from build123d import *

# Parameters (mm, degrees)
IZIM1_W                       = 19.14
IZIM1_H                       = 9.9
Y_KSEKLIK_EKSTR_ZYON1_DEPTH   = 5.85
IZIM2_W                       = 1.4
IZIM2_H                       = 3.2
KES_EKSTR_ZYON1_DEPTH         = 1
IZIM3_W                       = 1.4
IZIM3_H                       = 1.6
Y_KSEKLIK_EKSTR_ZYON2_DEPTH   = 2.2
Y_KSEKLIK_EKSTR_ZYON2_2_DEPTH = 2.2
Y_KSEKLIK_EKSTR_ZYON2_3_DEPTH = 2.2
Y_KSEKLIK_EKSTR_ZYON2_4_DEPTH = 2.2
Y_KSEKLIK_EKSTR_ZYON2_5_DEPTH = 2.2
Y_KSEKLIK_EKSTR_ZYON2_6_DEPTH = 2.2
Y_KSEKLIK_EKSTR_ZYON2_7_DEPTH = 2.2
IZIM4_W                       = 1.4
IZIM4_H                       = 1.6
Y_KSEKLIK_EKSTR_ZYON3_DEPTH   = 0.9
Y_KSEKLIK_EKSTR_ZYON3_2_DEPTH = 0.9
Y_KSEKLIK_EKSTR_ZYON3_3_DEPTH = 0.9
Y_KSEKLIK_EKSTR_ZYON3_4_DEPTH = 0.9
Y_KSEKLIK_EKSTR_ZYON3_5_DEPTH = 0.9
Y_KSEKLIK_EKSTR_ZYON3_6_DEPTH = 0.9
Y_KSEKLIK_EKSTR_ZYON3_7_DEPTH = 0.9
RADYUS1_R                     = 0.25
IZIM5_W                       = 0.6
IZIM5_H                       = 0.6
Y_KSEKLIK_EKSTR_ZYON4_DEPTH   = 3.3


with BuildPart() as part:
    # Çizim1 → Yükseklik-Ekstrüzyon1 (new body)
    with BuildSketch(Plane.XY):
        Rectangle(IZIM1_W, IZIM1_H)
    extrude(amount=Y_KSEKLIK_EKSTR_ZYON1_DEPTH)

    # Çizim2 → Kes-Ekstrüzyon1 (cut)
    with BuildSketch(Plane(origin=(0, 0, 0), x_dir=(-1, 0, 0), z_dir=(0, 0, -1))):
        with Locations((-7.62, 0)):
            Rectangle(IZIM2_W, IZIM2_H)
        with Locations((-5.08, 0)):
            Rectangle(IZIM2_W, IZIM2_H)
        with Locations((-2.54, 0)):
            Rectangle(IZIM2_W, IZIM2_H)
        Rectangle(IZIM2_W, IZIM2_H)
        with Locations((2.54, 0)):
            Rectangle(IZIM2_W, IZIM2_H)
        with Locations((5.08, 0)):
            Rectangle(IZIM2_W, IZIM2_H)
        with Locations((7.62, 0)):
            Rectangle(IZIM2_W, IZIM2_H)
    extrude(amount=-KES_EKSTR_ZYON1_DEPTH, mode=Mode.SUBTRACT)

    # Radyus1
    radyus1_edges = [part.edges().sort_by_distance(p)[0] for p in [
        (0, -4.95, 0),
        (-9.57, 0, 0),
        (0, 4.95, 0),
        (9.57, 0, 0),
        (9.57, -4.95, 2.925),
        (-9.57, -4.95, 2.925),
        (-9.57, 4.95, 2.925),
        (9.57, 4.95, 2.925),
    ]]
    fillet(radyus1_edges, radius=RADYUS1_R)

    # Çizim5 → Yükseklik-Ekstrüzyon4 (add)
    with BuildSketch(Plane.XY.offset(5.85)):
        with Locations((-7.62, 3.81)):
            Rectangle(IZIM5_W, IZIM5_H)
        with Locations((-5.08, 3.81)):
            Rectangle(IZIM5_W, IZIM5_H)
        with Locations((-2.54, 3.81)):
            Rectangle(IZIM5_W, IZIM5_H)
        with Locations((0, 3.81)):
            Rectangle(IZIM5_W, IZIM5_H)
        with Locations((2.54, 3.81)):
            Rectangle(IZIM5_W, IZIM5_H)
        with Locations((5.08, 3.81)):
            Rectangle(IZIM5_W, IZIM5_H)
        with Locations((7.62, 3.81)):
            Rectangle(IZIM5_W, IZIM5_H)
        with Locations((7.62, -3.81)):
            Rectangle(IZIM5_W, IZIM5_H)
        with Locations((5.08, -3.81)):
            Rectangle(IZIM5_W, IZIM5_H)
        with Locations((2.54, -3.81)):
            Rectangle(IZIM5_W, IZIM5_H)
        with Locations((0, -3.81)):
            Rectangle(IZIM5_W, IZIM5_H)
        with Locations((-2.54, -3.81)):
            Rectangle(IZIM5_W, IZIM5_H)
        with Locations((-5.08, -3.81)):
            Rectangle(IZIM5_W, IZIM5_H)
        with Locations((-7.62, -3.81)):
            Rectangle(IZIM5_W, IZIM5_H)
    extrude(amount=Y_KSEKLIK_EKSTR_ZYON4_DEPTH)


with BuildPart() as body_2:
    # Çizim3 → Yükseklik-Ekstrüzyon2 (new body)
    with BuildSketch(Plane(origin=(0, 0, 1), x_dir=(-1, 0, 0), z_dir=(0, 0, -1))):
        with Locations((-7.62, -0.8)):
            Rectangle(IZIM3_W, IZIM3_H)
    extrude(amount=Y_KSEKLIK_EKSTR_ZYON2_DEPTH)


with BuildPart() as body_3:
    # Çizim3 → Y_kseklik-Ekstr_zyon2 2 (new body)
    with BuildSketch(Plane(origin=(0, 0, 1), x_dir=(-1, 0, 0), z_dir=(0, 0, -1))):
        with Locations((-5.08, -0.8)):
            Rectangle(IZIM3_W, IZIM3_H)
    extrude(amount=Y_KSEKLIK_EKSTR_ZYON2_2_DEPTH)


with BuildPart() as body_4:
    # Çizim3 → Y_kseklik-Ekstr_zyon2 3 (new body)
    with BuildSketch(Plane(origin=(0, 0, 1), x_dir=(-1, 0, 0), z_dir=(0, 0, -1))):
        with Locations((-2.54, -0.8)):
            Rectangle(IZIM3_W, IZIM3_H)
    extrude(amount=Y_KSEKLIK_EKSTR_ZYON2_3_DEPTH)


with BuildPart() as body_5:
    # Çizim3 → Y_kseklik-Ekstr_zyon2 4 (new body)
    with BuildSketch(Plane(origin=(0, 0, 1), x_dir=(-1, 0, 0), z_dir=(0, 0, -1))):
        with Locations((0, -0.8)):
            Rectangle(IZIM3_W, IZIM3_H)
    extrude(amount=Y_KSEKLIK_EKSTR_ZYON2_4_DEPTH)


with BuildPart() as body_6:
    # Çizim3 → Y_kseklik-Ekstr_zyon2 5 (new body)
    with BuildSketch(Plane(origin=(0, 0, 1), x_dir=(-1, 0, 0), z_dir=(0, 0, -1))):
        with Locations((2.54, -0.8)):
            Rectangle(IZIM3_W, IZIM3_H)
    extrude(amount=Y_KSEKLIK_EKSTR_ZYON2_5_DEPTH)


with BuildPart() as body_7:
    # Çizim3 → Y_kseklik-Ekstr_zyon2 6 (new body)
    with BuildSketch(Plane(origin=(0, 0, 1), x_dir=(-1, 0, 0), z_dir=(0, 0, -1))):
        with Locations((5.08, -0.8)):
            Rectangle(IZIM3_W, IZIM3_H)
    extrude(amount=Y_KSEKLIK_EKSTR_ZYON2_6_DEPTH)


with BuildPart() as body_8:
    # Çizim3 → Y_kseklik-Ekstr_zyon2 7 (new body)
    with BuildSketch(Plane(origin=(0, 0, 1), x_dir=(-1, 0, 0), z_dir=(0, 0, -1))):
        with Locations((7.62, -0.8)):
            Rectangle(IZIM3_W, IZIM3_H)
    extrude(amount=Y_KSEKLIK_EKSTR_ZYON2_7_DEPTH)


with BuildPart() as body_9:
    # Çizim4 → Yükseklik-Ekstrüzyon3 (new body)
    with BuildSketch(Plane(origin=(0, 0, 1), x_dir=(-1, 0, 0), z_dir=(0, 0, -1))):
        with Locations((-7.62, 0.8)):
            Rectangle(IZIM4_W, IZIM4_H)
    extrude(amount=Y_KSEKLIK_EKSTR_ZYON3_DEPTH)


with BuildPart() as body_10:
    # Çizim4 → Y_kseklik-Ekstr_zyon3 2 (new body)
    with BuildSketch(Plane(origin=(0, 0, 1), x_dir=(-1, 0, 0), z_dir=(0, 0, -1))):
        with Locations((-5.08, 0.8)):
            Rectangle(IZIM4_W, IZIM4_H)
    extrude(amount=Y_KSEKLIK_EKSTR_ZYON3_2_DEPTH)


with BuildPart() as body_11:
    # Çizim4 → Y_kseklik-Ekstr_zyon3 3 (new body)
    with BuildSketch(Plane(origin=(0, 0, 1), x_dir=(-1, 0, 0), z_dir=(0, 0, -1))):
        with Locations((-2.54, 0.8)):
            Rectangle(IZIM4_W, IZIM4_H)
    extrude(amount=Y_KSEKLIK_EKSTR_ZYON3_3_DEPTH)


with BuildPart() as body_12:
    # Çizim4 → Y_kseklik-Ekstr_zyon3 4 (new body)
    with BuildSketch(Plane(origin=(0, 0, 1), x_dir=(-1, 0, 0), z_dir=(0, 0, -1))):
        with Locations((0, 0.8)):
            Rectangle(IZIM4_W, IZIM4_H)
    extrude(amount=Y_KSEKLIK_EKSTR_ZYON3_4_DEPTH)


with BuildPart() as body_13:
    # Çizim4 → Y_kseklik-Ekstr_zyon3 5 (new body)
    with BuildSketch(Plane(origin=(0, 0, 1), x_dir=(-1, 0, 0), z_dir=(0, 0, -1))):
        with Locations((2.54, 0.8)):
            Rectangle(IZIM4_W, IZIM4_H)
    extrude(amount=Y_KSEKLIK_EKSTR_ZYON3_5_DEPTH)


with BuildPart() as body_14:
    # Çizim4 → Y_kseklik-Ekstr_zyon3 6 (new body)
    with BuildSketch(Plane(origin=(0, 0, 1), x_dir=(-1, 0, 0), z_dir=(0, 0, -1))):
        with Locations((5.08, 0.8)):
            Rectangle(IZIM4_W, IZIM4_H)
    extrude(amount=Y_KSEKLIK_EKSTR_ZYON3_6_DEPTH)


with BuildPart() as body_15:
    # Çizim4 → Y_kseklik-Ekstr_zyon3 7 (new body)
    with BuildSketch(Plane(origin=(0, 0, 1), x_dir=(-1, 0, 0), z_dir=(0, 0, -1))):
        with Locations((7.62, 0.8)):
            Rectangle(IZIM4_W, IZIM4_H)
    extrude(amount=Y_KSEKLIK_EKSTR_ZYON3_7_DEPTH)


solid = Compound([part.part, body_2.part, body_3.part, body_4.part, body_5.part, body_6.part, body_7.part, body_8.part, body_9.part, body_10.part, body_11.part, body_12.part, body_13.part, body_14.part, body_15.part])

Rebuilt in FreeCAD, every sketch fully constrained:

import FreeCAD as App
import Part
import Sketcher

V = App.Vector


def edges_at(feature, points):
    """Names of the edges that pass closest to the given points."""
    edges = feature.Shape.Edges
    near = lambda p: min(range(len(edges)), key=lambda i: edges[i].distToShape(Part.Vertex(*p))[0])
    return sorted({f"Edge{near(p) + 1}" for p in points})


def add_polygon(sketch, points):
    """Adds a closed chain of lines whose ends are joined by coincident constraints."""
    first, n = sketch.GeometryCount, len(points)
    for a, b in zip(points, points[1:] + points[:1]):
        sketch.addGeometry(Part.LineSegment(App.Vector(*a, 0), App.Vector(*b, 0)), False)
    for i in range(n):
        sketch.addConstraint(Sketcher.Constraint("Coincident", first + i, 2, first + (i + 1) % n, 1))

doc = App.newDocument("Part")
body = doc.addObject("PartDesign::Body", "Body")

# Sketch on XY plane
sketch1 = body.newObject("Sketcher::SketchObject", "Sketch")
sketch1.AttachmentSupport = (doc.getObject("XY_Plane"), [""])
sketch1.MapMode = "FlatFace"
add_polygon(sketch1, [(-10, 5), (-10, -5), (10, -5), (10, 5)])  # lines 0-3
sketch1.addConstraint([
    Sketcher.Constraint("Vertical", 0),
    Sketcher.Constraint("Horizontal", 1),
    Sketcher.Constraint("Vertical", 2),
    Sketcher.Constraint("Horizontal", 3),
    Sketcher.Constraint("Symmetric", 0, 2, 2, 2, -1, 1),
    Sketcher.Constraint("DistanceY", 0, 2, 0, 1, 9.9),
    Sketcher.Constraint("DistanceX", 1, 1, 1, 2, 19.14),
])
pad1 = body.newObject("PartDesign::Pad", "Pad")
pad1.Profile = sketch1
pad1.Length = 5.85

# Sketch on XY plane
sketch2 = body.newObject("Sketcher::SketchObject", "Sketch001")
sketch2.AttachmentSupport = (doc.getObject("XY_Plane"), [""])
sketch2.MapMode = "FlatFace"
add_polygon(sketch2, [(8.3, 1.6), (8.3, -1.6), (6.9, -1.6), (6.9, 1.6)])  # lines 0-3
add_polygon(sketch2, [(5.8, 1.6), (5.8, -1.6), (4.4, -1.6), (4.4, 1.6)])  # lines 4-7
add_polygon(sketch2, [(3.2, 1.6), (3.2, -1.6), (1.8, -1.6), (1.8, 1.6)])  # lines 8-11
add_polygon(sketch2, [(0.7, 1.6), (0.7, -1.6), (-0.7, -1.6), (-0.7, 1.6)])  # lines 12-15
add_polygon(sketch2, [(-1.8, 1.6), (-1.8, -1.6), (-3.2, -1.6), (-3.2, 1.6)])  # lines 16-19
add_polygon(sketch2, [(-4.4, 1.6), (-4.4, -1.6), (-5.8, -1.6), (-5.8, 1.6)])  # lines 20-23
add_polygon(sketch2, [(-6.9, 1.6), (-6.9, -1.6), (-8.3, -1.6), (-8.3, 1.6)])  # lines 24-27
sketch2.addConstraint([
    Sketcher.Constraint("Vertical", 0),
    Sketcher.Constraint("Horizontal", 1),
    Sketcher.Constraint("Vertical", 2),
    Sketcher.Constraint("Horizontal", 3),
    Sketcher.Constraint("Vertical", 4),
    Sketcher.Constraint("Horizontal", 5),
    Sketcher.Constraint("Vertical", 6),
    Sketcher.Constraint("Horizontal", 7),
    Sketcher.Constraint("Vertical", 8),
    Sketcher.Constraint("Horizontal", 9),
    Sketcher.Constraint("Vertical", 10),
    Sketcher.Constraint("Horizontal", 11),
    Sketcher.Constraint("Vertical", 12),
    Sketcher.Constraint("Horizontal", 13),
    Sketcher.Constraint("Vertical", 14),
    Sketcher.Constraint("Horizontal", 15),
    Sketcher.Constraint("Vertical", 16),
    Sketcher.Constraint("Horizontal", 17),
    Sketcher.Constraint("Vertical", 18),
    Sketcher.Constraint("Horizontal", 19),
    Sketcher.Constraint("Vertical", 20),
    Sketcher.Constraint("Horizontal", 21),
    Sketcher.Constraint("Vertical", 22),
    Sketcher.Constraint("Horizontal", 23),
    Sketcher.Constraint("Vertical", 24),
    Sketcher.Constraint("Horizontal", 25),
    Sketcher.Constraint("Vertical", 26),
    Sketcher.Constraint("Horizontal", 27),
    Sketcher.Constraint("Symmetric", 12, 2, 14, 2, -1, 1),
    Sketcher.Constraint("Symmetric", 10, 2, 16, 2, -1, 1),
    Sketcher.Constraint("Symmetric", 8, 2, 18, 2, -1, 1),
    Sketcher.Constraint("Symmetric", 6, 2, 20, 2, -1, 1),
    Sketcher.Constraint("Symmetric", 4, 2, 22, 2, -1, 1),
    Sketcher.Constraint("Symmetric", 2, 2, 24, 2, -1, 1),
    Sketcher.Constraint("Symmetric", 0, 2, 26, 2, -1, 1),
    Sketcher.Constraint("Horizontal", 1, 2, 4, 2),
    Sketcher.Constraint("Horizontal", 3, 2, 6, 2),
    Sketcher.Constraint("Horizontal", 5, 2, 8, 2),
    Sketcher.Constraint("Horizontal", 7, 2, 10, 2),
    Sketcher.Constraint("Horizontal", 9, 2, 12, 2),
    Sketcher.Constraint("Horizontal", 11, 2, 14, 2),
    Sketcher.Constraint("Equal", 3, 5),
    Sketcher.Constraint("Equal", 7, 9),
    Sketcher.Constraint("Equal", 11, 13),
    Sketcher.Constraint("DistanceX", 1, 2, 1, 1, 1.4),
    Sketcher.Constraint("DistanceY", 0, 2, 0, 1, 3.2),
    Sketcher.Constraint("DistanceX", -1, 1, 0, 2, 8.32),
    Sketcher.Constraint("DistanceX", -1, 1, 4, 2, 5.78),
    Sketcher.Constraint("DistanceX", -1, 1, 8, 2, 3.24),
])
pocket1 = body.newObject("PartDesign::Pocket", "Pocket")
pocket1.Profile = sketch2
pocket1.Length = 1
pocket1.Reversed = True
doc.recompute()

fillet = body.newObject("PartDesign::Fillet", "Fillet")
fillet.Base = (pocket1, edges_at(pocket1, [
    (0, -4.95, 0),
    (-9.57, 0, 0),
    (0, 4.95, 0),
    (9.57, 0, 0),
    (9.57, -4.95, 2.925),
    (-9.57, -4.95, 2.925),
    (-9.57, 4.95, 2.925),
    (9.57, 4.95, 2.925),
]))
fillet.Radius = 0.25

# Sketch on XY plane
sketch3 = body.newObject("Sketcher::SketchObject", "Sketch002")
sketch3.AttachmentSupport = (doc.getObject("XY_Plane"), [""])
sketch3.MapMode = "FlatFace"
sketch3.AttachmentOffset = App.Placement(V(0, 0, 5.85), App.Rotation())
add_polygon(sketch3, [(-7.9, 4.1), (-7.9, 3.5), (-7.3, 3.5), (-7.3, 4.1)])  # lines 0-3
add_polygon(sketch3, [(-5.4, 4.1), (-5.4, 3.5), (-4.8, 3.5), (-4.8, 4.1)])  # lines 4-7
add_polygon(sketch3, [(-2.8, 4.1), (-2.8, 3.5), (-2.2, 3.5), (-2.2, 4.1)])  # lines 8-11
add_polygon(sketch3, [(-0.3, 4.1), (-0.3, 3.5), (0.3, 3.5), (0.3, 4.1)])  # lines 12-15
add_polygon(sketch3, [(2.2, 4.1), (2.2, 3.5), (2.8, 3.5), (2.8, 4.1)])  # lines 16-19
add_polygon(sketch3, [(4.8, 4.1), (4.8, 3.5), (5.4, 3.5), (5.4, 4.1)])  # lines 20-23
add_polygon(sketch3, [(7.3, 4.1), (7.3, 3.5), (7.9, 3.5), (7.9, 4.1)])  # lines 24-27
add_polygon(sketch3, [(7.3, -3.5), (7.3, -4.1), (7.9, -4.1), (7.9, -3.5)])  # lines 28-31
add_polygon(sketch3, [(4.8, -3.5), (4.8, -4.1), (5.4, -4.1), (5.4, -3.5)])  # lines 32-35
add_polygon(sketch3, [(2.2, -3.5), (2.2, -4.1), (2.8, -4.1), (2.8, -3.5)])  # lines 36-39
add_polygon(sketch3, [(-0.3, -3.5), (-0.3, -4.1), (0.3, -4.1), (0.3, -3.5)])  # lines 40-43
add_polygon(sketch3, [(-2.8, -3.5), (-2.8, -4.1), (-2.2, -4.1), (-2.2, -3.5)])  # lines 44-47
add_polygon(sketch3, [(-5.4, -3.5), (-5.4, -4.1), (-4.8, -4.1), (-4.8, -3.5)])  # lines 48-51
add_polygon(sketch3, [(-7.9, -3.5), (-7.9, -4.1), (-7.3, -4.1), (-7.3, -3.5)])  # lines 52-55
sketch3.addConstraint([
    Sketcher.Constraint("Vertical", 0),
    Sketcher.Constraint("Horizontal", 1),
    Sketcher.Constraint("Vertical", 2),
    Sketcher.Constraint("Horizontal", 3),
    Sketcher.Constraint("Vertical", 4),
    Sketcher.Constraint("Horizontal", 5),
    Sketcher.Constraint("Vertical", 6),
    Sketcher.Constraint("Horizontal", 7),
    Sketcher.Constraint("Vertical", 8),
    Sketcher.Constraint("Horizontal", 9),
    Sketcher.Constraint("Vertical", 10),
    Sketcher.Constraint("Horizontal", 11),
    Sketcher.Constraint("Vertical", 12),
    Sketcher.Constraint("Horizontal", 13),
    Sketcher.Constraint("Vertical", 14),
    Sketcher.Constraint("Horizontal", 15),
    Sketcher.Constraint("Vertical", 16),
    Sketcher.Constraint("Horizontal", 17),
    Sketcher.Constraint("Vertical", 18),
    Sketcher.Constraint("Horizontal", 19),
    Sketcher.Constraint("Vertical", 20),
    Sketcher.Constraint("Horizontal", 21),
    Sketcher.Constraint("Vertical", 22),
    Sketcher.Constraint("Horizontal", 23),
    Sketcher.Constraint("Vertical", 24),
    Sketcher.Constraint("Horizontal", 25),
    Sketcher.Constraint("Vertical", 26),
    Sketcher.Constraint("Horizontal", 27),
    Sketcher.Constraint("Vertical", 28),
    Sketcher.Constraint("Horizontal", 29),
    Sketcher.Constraint("Vertical", 30),
    Sketcher.Constraint("Horizontal", 31),
    Sketcher.Constraint("Vertical", 32),
    Sketcher.Constraint("Horizontal", 33),
    Sketcher.Constraint("Vertical", 34),
    Sketcher.Constraint("Horizontal", 35),
    Sketcher.Constraint("Vertical", 36),
    Sketcher.Constraint("Horizontal", 37),
    Sketcher.Constraint("Vertical", 38),
    Sketcher.Constraint("Horizontal", 39),
    Sketcher.Constraint("Vertical", 40),
    Sketcher.Constraint("Horizontal", 41),
    Sketcher.Constraint("Vertical", 42),
    Sketcher.Constraint("Horizontal", 43),
    Sketcher.Constraint("Vertical", 44),
    Sketcher.Constraint("Horizontal", 45),
    Sketcher.Constraint("Vertical", 46),
    Sketcher.Constraint("Horizontal", 47),
    Sketcher.Constraint("Vertical", 48),
    Sketcher.Constraint("Horizontal", 49),
    Sketcher.Constraint("Vertical", 50),
    Sketcher.Constraint("Horizontal", 51),
    Sketcher.Constraint("Vertical", 52),
    Sketcher.Constraint("Horizontal", 53),
    Sketcher.Constraint("Vertical", 54),
    Sketcher.Constraint("Horizontal", 55),
    Sketcher.Constraint("Symmetric", 2, 2, 28, 2, -1, 1),
    Sketcher.Constraint("Symmetric", 0, 2, 30, 2, -1, 1),
    Sketcher.Constraint("Symmetric", 6, 2, 32, 2, -1, 1),
    Sketcher.Constraint("Symmetric", 4, 2, 34, 2, -1, 1),
    Sketcher.Constraint("Symmetric", 10, 2, 36, 2, -1, 1),
    Sketcher.Constraint("Symmetric", 8, 2, 38, 2, -1, 1),
    Sketcher.Constraint("Symmetric", 14, 2, 40, 2, -1, 1),
    Sketcher.Constraint("Symmetric", 12, 2, 42, 2, -1, 1),
    Sketcher.Constraint("Symmetric", 18, 2, 44, 2, -1, 1),
    Sketcher.Constraint("Symmetric", 16, 2, 46, 2, -1, 1),
    Sketcher.Constraint("Symmetric", 22, 2, 48, 2, -1, 1),
    Sketcher.Constraint("Symmetric", 20, 2, 50, 2, -1, 1),
    Sketcher.Constraint("Symmetric", 26, 2, 52, 2, -1, 1),
    Sketcher.Constraint("Symmetric", 24, 2, 54, 2, -1, 1),
    Sketcher.Constraint("Symmetric", 9, 2, 16, 2, -2),
    Sketcher.Constraint("Symmetric", 11, 2, 18, 2, -2),
    Sketcher.Constraint("Symmetric", 5, 2, 20, 2, -2),
    Sketcher.Constraint("Symmetric", 7, 2, 22, 2, -2),
    Sketcher.Constraint("Symmetric", 1, 2, 24, 2, -2),
    Sketcher.Constraint("Symmetric", 3, 2, 26, 2, -2),
    Sketcher.Constraint("Horizontal", 1, 2, 4, 2),
    Sketcher.Constraint("Horizontal", 3, 2, 6, 2),
    Sketcher.Constraint("Horizontal", 5, 2, 8, 2),
    Sketcher.Constraint("Horizontal", 7, 2, 10, 2),
    Sketcher.Constraint("Horizontal", 9, 2, 12, 2),
    Sketcher.Constraint("Horizontal", 11, 2, 14, 2),
    Sketcher.Constraint("Vertical", 15, 2, 40, 2),
    Sketcher.Constraint("Equal", 3, 5),
    Sketcher.Constraint("Equal", 7, 9),
    Sketcher.Constraint("Equal", 11, 13),
    Sketcher.Constraint("Equal", 55, 0),
    Sketcher.Constraint("DistanceX", 1, 1, 1, 2, 0.6),
    Sketcher.Constraint("DistanceX", 0, 2, -1, 1, 7.92),
    Sketcher.Constraint("DistanceY", -1, 1, 0, 2, 3.51),
    Sketcher.Constraint("DistanceX", 4, 2, -1, 1, 5.38),
    Sketcher.Constraint("DistanceX", 8, 2, -1, 1, 2.84),
])
pad2 = body.newObject("PartDesign::Pad", "Pad001")
pad2.Profile = sketch3
pad2.Length = 3.3
body2 = doc.addObject("PartDesign::Body", "Body001")

# Sketch on XY plane
sketch4 = body2.newObject("Sketcher::SketchObject", "Sketch003")
sketch4.AttachmentSupport = (doc.getObject("XY_Plane001"), [""])
sketch4.MapMode = "FlatFace"
sketch4.AttachmentOffset = App.Placement(V(0, 0, 1), App.Rotation())
add_polygon(sketch4, [(8.3, 0), (8.3, -1.6), (6.9, -1.6), (6.9, 0)])  # lines 0-3
sketch4.addConstraint([
    Sketcher.Constraint("Vertical", 0),
    Sketcher.Constraint("Horizontal", 1),
    Sketcher.Constraint("Vertical", 2),
    Sketcher.Constraint("Horizontal", 3),
    Sketcher.Constraint("PointOnObject", 2, 2, -1),
    Sketcher.Constraint("DistanceX", 1, 2, 1, 1, 1.4),
    Sketcher.Constraint("DistanceY", 0, 2, 0, 1, 1.6),
    Sketcher.Constraint("DistanceX", -1, 1, 0, 2, 8.32),
])
pad3 = body2.newObject("PartDesign::Pad", "Pad002")
pad3.Profile = sketch4
pad3.Length = 2.2
pad3.Reversed = True
body3 = doc.addObject("PartDesign::Body", "Body002")

# Sketch on XY plane
sketch5 = body3.newObject("Sketcher::SketchObject", "Sketch004")
sketch5.AttachmentSupport = (doc.getObject("XY_Plane002"), [""])
sketch5.MapMode = "FlatFace"
sketch5.AttachmentOffset = App.Placement(V(0, 0, 1), App.Rotation())
add_polygon(sketch5, [(5.8, 0), (5.8, -1.6), (4.4, -1.6), (4.4, 0)])  # lines 0-3
sketch5.addConstraint([
    Sketcher.Constraint("Vertical", 0),
    Sketcher.Constraint("Horizontal", 1),
    Sketcher.Constraint("Vertical", 2),
    Sketcher.Constraint("Horizontal", 3),
    Sketcher.Constraint("PointOnObject", 2, 2, -1),
    Sketcher.Constraint("DistanceX", 1, 2, 1, 1, 1.4),
    Sketcher.Constraint("DistanceY", 0, 2, 0, 1, 1.6),
    Sketcher.Constraint("DistanceX", -1, 1, 0, 2, 5.78),
])
pad4 = body3.newObject("PartDesign::Pad", "Pad003")
pad4.Profile = sketch5
pad4.Length = 2.2
pad4.Reversed = True
body4 = doc.addObject("PartDesign::Body", "Body003")

# Sketch on XY plane
sketch6 = body4.newObject("Sketcher::SketchObject", "Sketch005")
sketch6.AttachmentSupport = (doc.getObject("XY_Plane003"), [""])
sketch6.MapMode = "FlatFace"
sketch6.AttachmentOffset = App.Placement(V(0, 0, 1), App.Rotation())
add_polygon(sketch6, [(3.2, 0), (3.2, -1.6), (1.8, -1.6), (1.8, 0)])  # lines 0-3
sketch6.addConstraint([
    Sketcher.Constraint("Vertical", 0),
    Sketcher.Constraint("Horizontal", 1),
    Sketcher.Constraint("Vertical", 2),
    Sketcher.Constraint("Horizontal", 3),
    Sketcher.Constraint("PointOnObject", 2, 2, -1),
    Sketcher.Constraint("DistanceX", 1, 2, 1, 1, 1.4),
    Sketcher.Constraint("DistanceY", 0, 2, 0, 1, 1.6),
    Sketcher.Constraint("DistanceX", -1, 1, 0, 2, 3.24),
])
pad5 = body4.newObject("PartDesign::Pad", "Pad004")
pad5.Profile = sketch6
pad5.Length = 2.2
pad5.Reversed = True
body5 = doc.addObject("PartDesign::Body", "Body004")

# Sketch on XY plane
sketch7 = body5.newObject("Sketcher::SketchObject", "Sketch006")
sketch7.AttachmentSupport = (doc.getObject("XY_Plane004"), [""])
sketch7.MapMode = "FlatFace"
sketch7.AttachmentOffset = App.Placement(V(0, 0, 1), App.Rotation())
add_polygon(sketch7, [(0.7, 0), (0.7, -1.6), (-0.7, -1.6), (-0.7, 0)])  # lines 0-3
sketch7.addConstraint([
    Sketcher.Constraint("Vertical", 0),
    Sketcher.Constraint("Horizontal", 1),
    Sketcher.Constraint("Vertical", 2),
    Sketcher.Constraint("Horizontal", 3),
    Sketcher.Constraint("Symmetric", 2, 2, 3, 2, -1, 1),
    Sketcher.Constraint("DistanceX", 1, 2, 1, 1, 1.4),
    Sketcher.Constraint("DistanceY", 0, 2, 0, 1, 1.6),
])
pad6 = body5.newObject("PartDesign::Pad", "Pad005")
pad6.Profile = sketch7
pad6.Length = 2.2
pad6.Reversed = True
body6 = doc.addObject("PartDesign::Body", "Body005")

# Sketch on XY plane
sketch8 = body6.newObject("Sketcher::SketchObject", "Sketch007")
sketch8.AttachmentSupport = (doc.getObject("XY_Plane005"), [""])
sketch8.MapMode = "FlatFace"
sketch8.AttachmentOffset = App.Placement(V(0, 0, 1), App.Rotation())
add_polygon(sketch8, [(-1.8, 0), (-1.8, -1.6), (-3.2, -1.6), (-3.2, 0)])  # lines 0-3
sketch8.addConstraint([
    Sketcher.Constraint("Vertical", 0),
    Sketcher.Constraint("Horizontal", 1),
    Sketcher.Constraint("Vertical", 2),
    Sketcher.Constraint("Horizontal", 3),
    Sketcher.Constraint("PointOnObject", 2, 2, -1),
    Sketcher.Constraint("DistanceX", 1, 2, 1, 1, 1.4),
    Sketcher.Constraint("DistanceY", 0, 2, 0, 1, 1.6),
    Sketcher.Constraint("DistanceX", 0, 2, -1, 1, 1.84),
])
pad7 = body6.newObject("PartDesign::Pad", "Pad006")
pad7.Profile = sketch8
pad7.Length = 2.2
pad7.Reversed = True
body7 = doc.addObject("PartDesign::Body", "Body006")

# Sketch on XY plane
sketch9 = body7.newObject("Sketcher::SketchObject", "Sketch008")
sketch9.AttachmentSupport = (doc.getObject("XY_Plane006"), [""])
sketch9.MapMode = "FlatFace"
sketch9.AttachmentOffset = App.Placement(V(0, 0, 1), App.Rotation())
add_polygon(sketch9, [(-4.4, 0), (-4.4, -1.6), (-5.8, -1.6), (-5.8, 0)])  # lines 0-3
sketch9.addConstraint([
    Sketcher.Constraint("Vertical", 0),
    Sketcher.Constraint("Horizontal", 1),
    Sketcher.Constraint("Vertical", 2),
    Sketcher.Constraint("Horizontal", 3),
    Sketcher.Constraint("PointOnObject", 2, 2, -1),
    Sketcher.Constraint("DistanceX", 1, 2, 1, 1, 1.4),
    Sketcher.Constraint("DistanceY", 0, 2, 0, 1, 1.6),
    Sketcher.Constraint("DistanceX", 0, 2, -1, 1, 4.38),
])
pad8 = body7.newObject("PartDesign::Pad", "Pad007")
pad8.Profile = sketch9
pad8.Length = 2.2
pad8.Reversed = True
body8 = doc.addObject("PartDesign::Body", "Body007")

# Sketch on XY plane
sketch10 = body8.newObject("Sketcher::SketchObject", "Sketch009")
sketch10.AttachmentSupport = (doc.getObject("XY_Plane007"), [""])
sketch10.MapMode = "FlatFace"
sketch10.AttachmentOffset = App.Placement(V(0, 0, 1), App.Rotation())
add_polygon(sketch10, [(-6.9, 0), (-6.9, -1.6), (-8.3, -1.6), (-8.3, 0)])  # lines 0-3
sketch10.addConstraint([
    Sketcher.Constraint("Vertical", 0),
    Sketcher.Constraint("Horizontal", 1),
    Sketcher.Constraint("Vertical", 2),
    Sketcher.Constraint("Horizontal", 3),
    Sketcher.Constraint("PointOnObject", 2, 2, -1),
    Sketcher.Constraint("DistanceX", 1, 2, 1, 1, 1.4),
    Sketcher.Constraint("DistanceY", 0, 2, 0, 1, 1.6),
    Sketcher.Constraint("DistanceX", 0, 2, -1, 1, 6.92),
])
pad9 = body8.newObject("PartDesign::Pad", "Pad008")
pad9.Profile = sketch10
pad9.Length = 2.2
pad9.Reversed = True
body9 = doc.addObject("PartDesign::Body", "Body008")

# Sketch on XY plane
sketch11 = body9.newObject("Sketcher::SketchObject", "Sketch010")
sketch11.AttachmentSupport = (doc.getObject("XY_Plane008"), [""])
sketch11.MapMode = "FlatFace"
sketch11.AttachmentOffset = App.Placement(V(0, 0, 1), App.Rotation())
add_polygon(sketch11, [(8.3, 1.6), (8.3, 0), (6.9, 0), (6.9, 1.6)])  # lines 0-3
sketch11.addConstraint([
    Sketcher.Constraint("Vertical", 0),
    Sketcher.Constraint("Horizontal", 1),
    Sketcher.Constraint("Vertical", 2),
    Sketcher.Constraint("Horizontal", 3),
    Sketcher.Constraint("PointOnObject", 0, 2, -1),
    Sketcher.Constraint("DistanceX", 1, 2, 1, 1, 1.4),
    Sketcher.Constraint("DistanceY", 0, 2, 0, 1, 1.6),
    Sketcher.Constraint("DistanceX", -1, 1, 0, 2, 8.32),
])
pad10 = body9.newObject("PartDesign::Pad", "Pad009")
pad10.Profile = sketch11
pad10.Length = 0.9
pad10.Reversed = True
body10 = doc.addObject("PartDesign::Body", "Body009")

# Sketch on XY plane
sketch12 = body10.newObject("Sketcher::SketchObject", "Sketch011")
sketch12.AttachmentSupport = (doc.getObject("XY_Plane009"), [""])
sketch12.MapMode = "FlatFace"
sketch12.AttachmentOffset = App.Placement(V(0, 0, 1), App.Rotation())
add_polygon(sketch12, [(5.8, 1.6), (5.8, 0), (4.4, 0), (4.4, 1.6)])  # lines 0-3
sketch12.addConstraint([
    Sketcher.Constraint("Vertical", 0),
    Sketcher.Constraint("Horizontal", 1),
    Sketcher.Constraint("Vertical", 2),
    Sketcher.Constraint("Horizontal", 3),
    Sketcher.Constraint("PointOnObject", 0, 2, -1),
    Sketcher.Constraint("DistanceX", 1, 2, 1, 1, 1.4),
    Sketcher.Constraint("DistanceY", 0, 2, 0, 1, 1.6),
    Sketcher.Constraint("DistanceX", -1, 1, 0, 2, 5.78),
])
pad11 = body10.newObject("PartDesign::Pad", "Pad010")
pad11.Profile = sketch12
pad11.Length = 0.9
pad11.Reversed = True
body11 = doc.addObject("PartDesign::Body", "Body010")

# Sketch on XY plane
sketch13 = body11.newObject("Sketcher::SketchObject", "Sketch012")
sketch13.AttachmentSupport = (doc.getObject("XY_Plane010"), [""])
sketch13.MapMode = "FlatFace"
sketch13.AttachmentOffset = App.Placement(V(0, 0, 1), App.Rotation())
add_polygon(sketch13, [(3.2, 1.6), (3.2, 0), (1.8, 0), (1.8, 1.6)])  # lines 0-3
sketch13.addConstraint([
    Sketcher.Constraint("Vertical", 0),
    Sketcher.Constraint("Horizontal", 1),
    Sketcher.Constraint("Vertical", 2),
    Sketcher.Constraint("Horizontal", 3),
    Sketcher.Constraint("PointOnObject", 0, 2, -1),
    Sketcher.Constraint("DistanceX", 1, 2, 1, 1, 1.4),
    Sketcher.Constraint("DistanceY", 0, 2, 0, 1, 1.6),
    Sketcher.Constraint("DistanceX", -1, 1, 0, 2, 3.24),
])
pad12 = body11.newObject("PartDesign::Pad", "Pad011")
pad12.Profile = sketch13
pad12.Length = 0.9
pad12.Reversed = True
body12 = doc.addObject("PartDesign::Body", "Body011")

# Sketch on XY plane
sketch14 = body12.newObject("Sketcher::SketchObject", "Sketch013")
sketch14.AttachmentSupport = (doc.getObject("XY_Plane011"), [""])
sketch14.MapMode = "FlatFace"
sketch14.AttachmentOffset = App.Placement(V(0, 0, 1), App.Rotation())
add_polygon(sketch14, [(0.7, 1.6), (0.7, 0), (-0.7, 0), (-0.7, 1.6)])  # lines 0-3
sketch14.addConstraint([
    Sketcher.Constraint("Vertical", 0),
    Sketcher.Constraint("Horizontal", 1),
    Sketcher.Constraint("Vertical", 2),
    Sketcher.Constraint("Horizontal", 3),
    Sketcher.Constraint("Symmetric", 0, 2, 1, 2, -1, 1),
    Sketcher.Constraint("DistanceX", 1, 2, 1, 1, 1.4),
    Sketcher.Constraint("DistanceY", 0, 2, 0, 1, 1.6),
])
pad13 = body12.newObject("PartDesign::Pad", "Pad012")
pad13.Profile = sketch14
pad13.Length = 0.9
pad13.Reversed = True
body13 = doc.addObject("PartDesign::Body", "Body012")

# Sketch on XY plane
sketch15 = body13.newObject("Sketcher::SketchObject", "Sketch014")
sketch15.AttachmentSupport = (doc.getObject("XY_Plane012"), [""])
sketch15.MapMode = "FlatFace"
sketch15.AttachmentOffset = App.Placement(V(0, 0, 1), App.Rotation())
add_polygon(sketch15, [(-1.8, 1.6), (-1.8, 0), (-3.2, 0), (-3.2, 1.6)])  # lines 0-3
sketch15.addConstraint([
    Sketcher.Constraint("Vertical", 0),
    Sketcher.Constraint("Horizontal", 1),
    Sketcher.Constraint("Vertical", 2),
    Sketcher.Constraint("Horizontal", 3),
    Sketcher.Constraint("PointOnObject", 0, 2, -1),
    Sketcher.Constraint("DistanceX", 1, 2, 1, 1, 1.4),
    Sketcher.Constraint("DistanceY", 0, 2, 0, 1, 1.6),
    Sketcher.Constraint("DistanceX", 0, 2, -1, 1, 1.84),
])
pad14 = body13.newObject("PartDesign::Pad", "Pad013")
pad14.Profile = sketch15
pad14.Length = 0.9
pad14.Reversed = True
body14 = doc.addObject("PartDesign::Body", "Body013")

# Sketch on XY plane
sketch16 = body14.newObject("Sketcher::SketchObject", "Sketch015")
sketch16.AttachmentSupport = (doc.getObject("XY_Plane013"), [""])
sketch16.MapMode = "FlatFace"
sketch16.AttachmentOffset = App.Placement(V(0, 0, 1), App.Rotation())
add_polygon(sketch16, [(-4.4, 1.6), (-4.4, 0), (-5.8, 0), (-5.8, 1.6)])  # lines 0-3
sketch16.addConstraint([
    Sketcher.Constraint("Vertical", 0),
    Sketcher.Constraint("Horizontal", 1),
    Sketcher.Constraint("Vertical", 2),
    Sketcher.Constraint("Horizontal", 3),
    Sketcher.Constraint("PointOnObject", 0, 2, -1),
    Sketcher.Constraint("DistanceX", 1, 2, 1, 1, 1.4),
    Sketcher.Constraint("DistanceY", 0, 2, 0, 1, 1.6),
    Sketcher.Constraint("DistanceX", 0, 2, -1, 1, 4.38),
])
pad15 = body14.newObject("PartDesign::Pad", "Pad014")
pad15.Profile = sketch16
pad15.Length = 0.9
pad15.Reversed = True
body15 = doc.addObject("PartDesign::Body", "Body014")

# Sketch on XY plane
sketch17 = body15.newObject("Sketcher::SketchObject", "Sketch016")
sketch17.AttachmentSupport = (doc.getObject("XY_Plane014"), [""])
sketch17.MapMode = "FlatFace"
sketch17.AttachmentOffset = App.Placement(V(0, 0, 1), App.Rotation())
add_polygon(sketch17, [(-6.9, 1.6), (-6.9, 0), (-8.3, 0), (-8.3, 1.6)])  # lines 0-3
sketch17.addConstraint([
    Sketcher.Constraint("Vertical", 0),
    Sketcher.Constraint("Horizontal", 1),
    Sketcher.Constraint("Vertical", 2),
    Sketcher.Constraint("Horizontal", 3),
    Sketcher.Constraint("PointOnObject", 0, 2, -1),
    Sketcher.Constraint("DistanceX", 1, 2, 1, 1, 1.4),
    Sketcher.Constraint("DistanceY", 0, 2, 0, 1, 1.6),
    Sketcher.Constraint("DistanceX", 0, 2, -1, 1, 6.92),
])
pad16 = body15.newObject("PartDesign::Pad", "Pad015")
pad16.Profile = sketch17
pad16.Length = 0.9
pad16.Reversed = True

doc.recompute()
